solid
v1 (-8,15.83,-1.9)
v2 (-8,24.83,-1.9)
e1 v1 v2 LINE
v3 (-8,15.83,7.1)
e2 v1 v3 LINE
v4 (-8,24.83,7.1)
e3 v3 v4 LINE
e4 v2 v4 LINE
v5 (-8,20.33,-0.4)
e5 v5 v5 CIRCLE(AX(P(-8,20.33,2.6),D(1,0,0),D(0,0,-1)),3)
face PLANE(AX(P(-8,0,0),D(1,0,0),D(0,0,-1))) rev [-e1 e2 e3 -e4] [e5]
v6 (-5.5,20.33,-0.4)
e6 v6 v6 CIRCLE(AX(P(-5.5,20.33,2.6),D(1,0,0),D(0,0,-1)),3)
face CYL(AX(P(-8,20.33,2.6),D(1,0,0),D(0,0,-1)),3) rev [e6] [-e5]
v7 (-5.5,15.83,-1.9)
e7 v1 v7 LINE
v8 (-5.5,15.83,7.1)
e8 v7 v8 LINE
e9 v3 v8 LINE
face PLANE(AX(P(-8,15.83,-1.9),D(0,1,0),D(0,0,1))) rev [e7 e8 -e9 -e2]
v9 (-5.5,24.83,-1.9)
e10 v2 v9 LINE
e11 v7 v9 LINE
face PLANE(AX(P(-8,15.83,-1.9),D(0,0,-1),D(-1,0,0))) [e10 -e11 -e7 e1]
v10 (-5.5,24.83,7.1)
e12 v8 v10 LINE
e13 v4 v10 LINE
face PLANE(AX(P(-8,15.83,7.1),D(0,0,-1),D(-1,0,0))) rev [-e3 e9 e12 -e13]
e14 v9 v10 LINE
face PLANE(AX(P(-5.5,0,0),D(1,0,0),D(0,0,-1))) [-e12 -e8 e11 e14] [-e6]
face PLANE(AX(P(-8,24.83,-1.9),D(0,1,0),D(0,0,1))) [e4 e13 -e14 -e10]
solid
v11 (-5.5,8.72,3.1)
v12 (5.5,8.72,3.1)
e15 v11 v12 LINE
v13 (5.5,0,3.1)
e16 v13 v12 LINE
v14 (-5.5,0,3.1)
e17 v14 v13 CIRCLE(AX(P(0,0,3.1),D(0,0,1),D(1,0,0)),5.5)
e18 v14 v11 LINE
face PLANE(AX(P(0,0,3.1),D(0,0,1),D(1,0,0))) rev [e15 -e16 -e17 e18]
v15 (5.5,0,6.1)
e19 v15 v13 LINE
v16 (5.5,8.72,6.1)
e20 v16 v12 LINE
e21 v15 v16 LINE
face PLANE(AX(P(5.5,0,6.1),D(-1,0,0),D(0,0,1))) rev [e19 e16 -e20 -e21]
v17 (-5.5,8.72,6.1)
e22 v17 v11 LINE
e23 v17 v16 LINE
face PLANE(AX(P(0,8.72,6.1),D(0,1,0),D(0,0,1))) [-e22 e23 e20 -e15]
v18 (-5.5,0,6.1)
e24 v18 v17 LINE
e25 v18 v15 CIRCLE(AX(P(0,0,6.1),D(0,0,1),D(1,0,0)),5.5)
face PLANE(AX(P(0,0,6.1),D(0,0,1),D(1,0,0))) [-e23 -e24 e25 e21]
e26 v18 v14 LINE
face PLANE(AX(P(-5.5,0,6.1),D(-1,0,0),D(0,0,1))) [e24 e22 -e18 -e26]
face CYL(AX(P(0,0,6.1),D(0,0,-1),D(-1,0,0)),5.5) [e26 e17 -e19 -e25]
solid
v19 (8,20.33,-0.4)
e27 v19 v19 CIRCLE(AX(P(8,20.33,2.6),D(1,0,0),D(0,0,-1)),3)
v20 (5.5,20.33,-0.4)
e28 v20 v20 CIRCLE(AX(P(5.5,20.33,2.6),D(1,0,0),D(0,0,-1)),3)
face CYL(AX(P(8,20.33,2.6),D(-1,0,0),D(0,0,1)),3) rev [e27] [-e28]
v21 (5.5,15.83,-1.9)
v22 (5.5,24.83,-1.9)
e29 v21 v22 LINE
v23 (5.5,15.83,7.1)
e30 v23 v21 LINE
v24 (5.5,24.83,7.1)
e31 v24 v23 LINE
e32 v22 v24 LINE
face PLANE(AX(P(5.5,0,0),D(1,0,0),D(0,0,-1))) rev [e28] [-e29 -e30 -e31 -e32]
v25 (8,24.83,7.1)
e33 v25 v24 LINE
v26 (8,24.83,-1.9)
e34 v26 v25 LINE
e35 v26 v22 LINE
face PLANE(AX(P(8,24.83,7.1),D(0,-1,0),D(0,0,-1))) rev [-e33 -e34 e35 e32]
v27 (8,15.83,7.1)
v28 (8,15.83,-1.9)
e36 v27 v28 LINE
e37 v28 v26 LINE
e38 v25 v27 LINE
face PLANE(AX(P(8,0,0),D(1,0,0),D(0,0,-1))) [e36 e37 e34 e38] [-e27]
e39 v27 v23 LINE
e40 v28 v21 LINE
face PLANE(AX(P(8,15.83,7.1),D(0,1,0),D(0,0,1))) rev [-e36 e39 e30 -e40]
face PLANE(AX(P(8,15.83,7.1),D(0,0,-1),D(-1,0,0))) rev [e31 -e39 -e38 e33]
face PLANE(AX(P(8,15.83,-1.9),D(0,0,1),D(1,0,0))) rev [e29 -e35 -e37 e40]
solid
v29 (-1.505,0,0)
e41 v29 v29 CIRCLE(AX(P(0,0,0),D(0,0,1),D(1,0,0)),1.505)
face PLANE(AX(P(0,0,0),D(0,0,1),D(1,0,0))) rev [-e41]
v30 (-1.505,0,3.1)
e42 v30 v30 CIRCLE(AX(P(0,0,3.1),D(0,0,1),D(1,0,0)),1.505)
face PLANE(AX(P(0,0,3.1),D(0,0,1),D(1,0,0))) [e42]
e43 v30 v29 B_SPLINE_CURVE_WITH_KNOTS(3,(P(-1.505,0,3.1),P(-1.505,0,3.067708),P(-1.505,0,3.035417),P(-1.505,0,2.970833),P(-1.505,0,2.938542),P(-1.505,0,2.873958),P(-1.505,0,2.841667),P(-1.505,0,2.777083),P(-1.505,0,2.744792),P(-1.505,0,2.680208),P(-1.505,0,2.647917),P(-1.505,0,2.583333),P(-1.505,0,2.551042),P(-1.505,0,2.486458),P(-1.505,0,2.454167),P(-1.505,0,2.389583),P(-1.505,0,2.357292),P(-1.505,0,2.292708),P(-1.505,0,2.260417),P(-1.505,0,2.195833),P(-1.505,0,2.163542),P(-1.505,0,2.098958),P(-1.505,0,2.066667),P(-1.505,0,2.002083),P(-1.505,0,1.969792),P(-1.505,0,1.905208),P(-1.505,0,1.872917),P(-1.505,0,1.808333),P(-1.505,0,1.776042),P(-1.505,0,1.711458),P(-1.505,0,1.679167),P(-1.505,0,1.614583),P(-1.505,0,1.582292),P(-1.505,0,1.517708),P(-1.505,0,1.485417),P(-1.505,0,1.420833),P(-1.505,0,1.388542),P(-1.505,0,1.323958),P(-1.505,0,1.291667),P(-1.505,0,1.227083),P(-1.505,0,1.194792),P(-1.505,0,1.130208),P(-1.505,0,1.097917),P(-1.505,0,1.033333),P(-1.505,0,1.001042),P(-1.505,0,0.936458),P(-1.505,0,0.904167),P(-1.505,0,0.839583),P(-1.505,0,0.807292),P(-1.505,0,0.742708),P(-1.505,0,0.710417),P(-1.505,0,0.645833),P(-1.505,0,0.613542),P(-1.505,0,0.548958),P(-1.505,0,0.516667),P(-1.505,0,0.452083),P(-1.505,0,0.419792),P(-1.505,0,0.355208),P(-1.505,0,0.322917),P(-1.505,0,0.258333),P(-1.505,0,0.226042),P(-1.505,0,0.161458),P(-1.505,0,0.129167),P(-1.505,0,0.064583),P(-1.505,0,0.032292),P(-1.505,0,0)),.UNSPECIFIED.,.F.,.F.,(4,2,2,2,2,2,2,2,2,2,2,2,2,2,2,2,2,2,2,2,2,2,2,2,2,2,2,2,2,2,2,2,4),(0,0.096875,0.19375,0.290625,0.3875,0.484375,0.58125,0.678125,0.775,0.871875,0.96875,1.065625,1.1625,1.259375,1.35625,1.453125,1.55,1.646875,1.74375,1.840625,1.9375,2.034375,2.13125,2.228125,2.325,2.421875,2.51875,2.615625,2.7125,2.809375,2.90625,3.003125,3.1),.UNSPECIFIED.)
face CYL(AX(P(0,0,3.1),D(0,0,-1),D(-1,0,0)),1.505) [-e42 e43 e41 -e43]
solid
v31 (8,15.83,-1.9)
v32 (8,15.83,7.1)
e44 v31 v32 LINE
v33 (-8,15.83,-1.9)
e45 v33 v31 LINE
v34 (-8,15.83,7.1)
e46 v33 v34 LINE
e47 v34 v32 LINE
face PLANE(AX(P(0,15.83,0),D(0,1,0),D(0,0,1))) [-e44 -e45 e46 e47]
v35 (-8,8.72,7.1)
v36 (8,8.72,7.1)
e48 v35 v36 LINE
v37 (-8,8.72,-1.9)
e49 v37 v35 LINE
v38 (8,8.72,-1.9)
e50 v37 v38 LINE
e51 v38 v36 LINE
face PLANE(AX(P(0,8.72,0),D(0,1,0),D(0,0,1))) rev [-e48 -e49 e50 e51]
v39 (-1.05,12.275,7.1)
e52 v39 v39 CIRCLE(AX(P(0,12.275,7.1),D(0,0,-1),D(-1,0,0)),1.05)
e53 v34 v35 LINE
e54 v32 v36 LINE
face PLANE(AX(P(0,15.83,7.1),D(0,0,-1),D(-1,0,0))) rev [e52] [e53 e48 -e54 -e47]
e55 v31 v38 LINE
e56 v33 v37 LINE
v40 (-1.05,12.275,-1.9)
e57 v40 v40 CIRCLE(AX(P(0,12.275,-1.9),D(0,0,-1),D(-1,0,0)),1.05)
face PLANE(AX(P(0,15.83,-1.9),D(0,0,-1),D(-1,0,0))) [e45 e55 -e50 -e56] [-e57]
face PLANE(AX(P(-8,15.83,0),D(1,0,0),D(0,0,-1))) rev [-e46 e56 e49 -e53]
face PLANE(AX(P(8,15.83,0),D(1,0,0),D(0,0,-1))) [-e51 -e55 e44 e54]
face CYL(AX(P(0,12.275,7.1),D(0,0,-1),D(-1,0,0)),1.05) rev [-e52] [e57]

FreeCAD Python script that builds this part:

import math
import FreeCAD as App
import Part
import Sketcher
Q = App.Units.Quantity

doc = App.newDocument("Part")
body = doc.addObject("PartDesign::Body", "Body")

sketch1 = doc.addObject("Sketcher::SketchObject", "Sketch")
body.addObject(sketch1)
sketch1.AttachmentSupport = (doc.XY_Plane, [""])
sketch1.MapMode = "FlatFace"
sketch1.addGeometry(Part.Circle(App.Vector(0, 0, 0), App.Vector(0, 0, 1), 1.505), False)
sketch1.addConstraint(Sketcher.Constraint("Coincident", 0, 3, -1, 1))
sketch1.addConstraint(Sketcher.Constraint("Diameter", 0, Q("3.01 mm")))
pad1 = doc.addObject("PartDesign::Pad", "Pad")
body.addObject(pad1)
pad1.Profile = sketch1
pad1.Length = 3.1
body2 = doc.addObject("PartDesign::Body", "Body001")

sketch2 = doc.addObject("Sketcher::SketchObject", "Sketch001")
body2.addObject(sketch2)
sketch2.AttachmentSupport = (doc.getObject("XY_Plane001"), [""])
sketch2.MapMode = "FlatFace"
sketch2.AttachmentOffset = App.Placement(App.Vector(0, 0, 3.1), App.Rotation())
sketch2.addGeometry(Part.ArcOfCircle(Part.Circle(App.Vector(0, 0, 0), App.Vector(0, 0, 1), 5.5), math.radians(180), math.radians(360)), False)
sketch2.addGeometry(Part.LineSegment(App.Vector(5.5, 0, 0), App.Vector(5.5, 8.72, 0)), False)
sketch2.addGeometry(Part.LineSegment(App.Vector(5.5, 8.72, 0), App.Vector(-5.5, 8.72, 0)), False)
sketch2.addGeometry(Part.LineSegment(App.Vector(-5.5, 8.72, 0), App.Vector(-5.5, 0, 0)), False)
sketch2.addConstraint(Sketcher.Constraint("Tangent", 0, 2, 1, 1))
sketch2.addConstraint(Sketcher.Constraint("Coincident", 1, 2, 2, 1))
sketch2.addConstraint(Sketcher.Constraint("Coincident", 2, 2, 3, 1))
sketch2.addConstraint(Sketcher.Constraint("Tangent", 3, 2, 0, 1))
sketch2.addConstraint(Sketcher.Constraint("Vertical", 1))
sketch2.addConstraint(Sketcher.Constraint("Horizontal", 2))
sketch2.addConstraint(Sketcher.Constraint("Vertical", 3))
sketch2.addConstraint(Sketcher.Constraint("Coincident", 0, 3, -1, 1))
sketch2.addConstraint(Sketcher.Constraint("Radius", 0, Q("5.5 mm")))
sketch2.addConstraint(Sketcher.Constraint("DistanceY", 1, 1, 1, 2, Q("8.72 mm")))
pad2 = doc.addObject("PartDesign::Pad", "Pad001")
body2.addObject(pad2)
pad2.Profile = sketch2
pad2.Length = 3
body3 = doc.addObject("PartDesign::Body", "Body002")

sketch3 = doc.addObject("Sketcher::SketchObject", "Sketch002")
body3.addObject(sketch3)
sketch3.AttachmentSupport = (doc.getObject("XZ_Plane002"), [""])
sketch3.MapMode = "FlatFace"
sketch3.AttachmentOffset = App.Placement(App.Vector(0, 0, -8.72), App.Rotation())
sketch3.addGeometry(Part.LineSegment(App.Vector(8, -1.9, 0), App.Vector(-8, -1.9, 0)), False)
sketch3.addGeometry(Part.LineSegment(App.Vector(-8, -1.9, 0), App.Vector(-8, 7.1, 0)), False)
sketch3.addGeometry(Part.LineSegment(App.Vector(-8, 7.1, 0), App.Vector(8, 7.1, 0)), False)
sketch3.addGeometry(Part.LineSegment(App.Vector(8, 7.1, 0), App.Vector(8, -1.9, 0)), False)
sketch3.addConstraint(Sketcher.Constraint("Coincident", 0, 2, 1, 1))
sketch3.addConstraint(Sketcher.Constraint("Coincident", 1, 2, 2, 1))
sketch3.addConstraint(Sketcher.Constraint("Coincident", 2, 2, 3, 1))
sketch3.addConstraint(Sketcher.Constraint("Coincident", 3, 2, 0, 1))
sketch3.addConstraint(Sketcher.Constraint("Horizontal", 0))
sketch3.addConstraint(Sketcher.Constraint("Vertical", 1))
sketch3.addConstraint(Sketcher.Constraint("Horizontal", 2))
sketch3.addConstraint(Sketcher.Constraint("Vertical", 3))
sketch3.addConstraint(Sketcher.Constraint("DistanceX", 0, 2, 0, 1, Q("16 mm")))
sketch3.addConstraint(Sketcher.Constraint("DistanceY", 1, 1, 1, 2, Q("9 mm")))
sketch3.addConstraint(Sketcher.Constraint("DistanceX", 0, 2, -1, 1, Q("8 mm")))
sketch3.addConstraint(Sketcher.Constraint("DistanceY", 0, 2, -1, 1, Q("1.9 mm")))
pad3 = doc.addObject("PartDesign::Pad", "Pad002")
body3.addObject(pad3)
pad3.Profile = sketch3
pad3.Length = 7.11
pad3.Reversed = True

sketch4 = doc.addObject("Sketcher::SketchObject", "Sketch003")
body3.addObject(sketch4)
sketch4.AttachmentSupport = (doc.getObject("XY_Plane002"), [""])
sketch4.MapMode = "FlatFace"
sketch4.AttachmentOffset = App.Placement(App.Vector(0, 0, -1.9), App.Rotation())
sketch4.addGeometry(Part.Circle(App.Vector(0, 12.275, 0), App.Vector(0, 0, 1), 1.05), False)
sketch4.addConstraint(Sketcher.Constraint("PointOnObject", 0, 3, -2))
sketch4.addConstraint(Sketcher.Constraint("Diameter", 0, Q("2.1 mm")))
sketch4.addConstraint(Sketcher.Constraint("DistanceY", -1, 1, 0, 3, Q("12.275 mm")))
pocket1 = doc.addObject("PartDesign::Pocket", "Pocket")
body3.addObject(pocket1)
pocket1.Profile = sketch4
pocket1.Length = 9
pocket1.Reversed = True
body4 = doc.addObject("PartDesign::Body", "Body003")

sketch5 = doc.addObject("Sketcher::SketchObject", "Sketch004")
body4.addObject(sketch5)
sketch5.AttachmentSupport = (doc.getObject("YZ_Plane003"), [""])
sketch5.MapMode = "FlatFace"
sketch5.AttachmentOffset = App.Placement(App.Vector(0, 0, -8), App.Rotation())
sketch5.addGeometry(Part.LineSegment(App.Vector(24.83, -1.9, 0), App.Vector(15.83, -1.9, 0)), False)
sketch5.addGeometry(Part.LineSegment(App.Vector(15.83, -1.9, 0), App.Vector(15.83, 7.1, 0)), False)
sketch5.addGeometry(Part.LineSegment(App.Vector(15.83, 7.1, 0), App.Vector(24.83, 7.1, 0)), False)
sketch5.addGeometry(Part.LineSegment(App.Vector(24.83, 7.1, 0), App.Vector(24.83, -1.9, 0)), False)
sketch5.addGeometry(Part.Circle(App.Vector(20.33, 2.6, 0), App.Vector(0, 0, 1), 3), False)
sketch5.addConstraint(Sketcher.Constraint("Coincident", 0, 2, 1, 1))
sketch5.addConstraint(Sketcher.Constraint("Coincident", 1, 2, 2, 1))
sketch5.addConstraint(Sketcher.Constraint("Coincident", 2, 2, 3, 1))
sketch5.addConstraint(Sketcher.Constraint("Coincident", 3, 2, 0, 1))
sketch5.addConstraint(Sketcher.Constraint("Horizontal", 0))
sketch5.addConstraint(Sketcher.Constraint("Vertical", 1))
sketch5.addConstraint(Sketcher.Constraint("Horizontal", 2))
sketch5.addConstraint(Sketcher.Constraint("Vertical", 3))
sketch5.addConstraint(Sketcher.Constraint("Equal", 2, 1))
sketch5.addConstraint(Sketcher.Constraint("Diameter", 4, Q("6 mm")))
sketch5.addConstraint(Sketcher.Constraint("DistanceX", 0, 2, 0, 1, Q("9 mm")))
sketch5.addConstraint(Sketcher.Constraint("DistanceY", -1, 1, 4, 3, Q("2.6 mm")))
sketch5.addConstraint(Sketcher.Constraint("DistanceY", 0, 2, -1, 1, Q("1.9 mm")))
sketch5.addConstraint(Sketcher.Constraint("DistanceX", 0, 2, 4, 3, Q("4.5 mm")))
sketch5.addConstraint(Sketcher.Constraint("DistanceX", -1, 1, 4, 3, Q("20.33 mm")))
pad4 = doc.addObject("PartDesign::Pad", "Pad003")
body4.addObject(pad4)
pad4.Profile = sketch5
pad4.Length = 2.5
body5 = doc.addObject("PartDesign::Body", "Body004")

sketch6 = doc.addObject("Sketcher::SketchObject", "Sketch005")
body5.addObject(sketch6)
sketch6.AttachmentSupport = (doc.getObject("YZ_Plane004"), [""])
sketch6.MapMode = "FlatFace"
sketch6.AttachmentOffset = App.Placement(App.Vector(0, 0, 8), App.Rotation())
sketch6.addGeometry(Part.LineSegment(App.Vector(24.83, 7.1, 0), App.Vector(15.83, 7.1, 0)), False)
sketch6.addGeometry(Part.LineSegment(App.Vector(15.83, 7.1, 0), App.Vector(15.83, -1.9, 0)), False)
sketch6.addGeometry(Part.LineSegment(App.Vector(15.83, -1.9, 0), App.Vector(24.83, -1.9, 0)), False)
sketch6.addGeometry(Part.LineSegment(App.Vector(24.83, -1.9, 0), App.Vector(24.83, 7.1, 0)), False)
sketch6.addGeometry(Part.Circle(App.Vector(20.33, 2.6, 0), App.Vector(0, 0, 1), 3), False)
sketch6.addConstraint(Sketcher.Constraint("Coincident", 0, 2, 1, 1))
sketch6.addConstraint(Sketcher.Constraint("Coincident", 1, 2, 2, 1))
sketch6.addConstraint(Sketcher.Constraint("Coincident", 2, 2, 3, 1))
sketch6.addConstraint(Sketcher.Constraint("Coincident", 3, 2, 0, 1))
sketch6.addConstraint(Sketcher.Constraint("Horizontal", 0))
sketch6.addConstraint(Sketcher.Constraint("Vertical", 1))
sketch6.addConstraint(Sketcher.Constraint("Horizontal", 2))
sketch6.addConstraint(Sketcher.Constraint("Vertical", 3))
sketch6.addConstraint(Sketcher.Constraint("Equal", 2, 1))
sketch6.addConstraint(Sketcher.Constraint("Diameter", 4, Q("6 mm")))
sketch6.addConstraint(Sketcher.Constraint("DistanceX", 0, 2, 0, 1, Q("9 mm")))
sketch6.addConstraint(Sketcher.Constraint("DistanceY", -1, 1, 4, 3, Q("2.6 mm")))
sketch6.addConstraint(Sketcher.Constraint("DistanceY", -1, 1, 0, 2, Q("7.1 mm")))
sketch6.addConstraint(Sketcher.Constraint("DistanceX", 0, 2, 4, 3, Q("4.5 mm")))
sketch6.addConstraint(Sketcher.Constraint("DistanceX", -1, 1, 4, 3, Q("20.33 mm")))
pad5 = doc.addObject("PartDesign::Pad", "Pad004")
body5.addObject(pad5)
pad5.Profile = sketch6
pad5.Length = 2.5
pad5.Reversed = True

doc.recompute()
